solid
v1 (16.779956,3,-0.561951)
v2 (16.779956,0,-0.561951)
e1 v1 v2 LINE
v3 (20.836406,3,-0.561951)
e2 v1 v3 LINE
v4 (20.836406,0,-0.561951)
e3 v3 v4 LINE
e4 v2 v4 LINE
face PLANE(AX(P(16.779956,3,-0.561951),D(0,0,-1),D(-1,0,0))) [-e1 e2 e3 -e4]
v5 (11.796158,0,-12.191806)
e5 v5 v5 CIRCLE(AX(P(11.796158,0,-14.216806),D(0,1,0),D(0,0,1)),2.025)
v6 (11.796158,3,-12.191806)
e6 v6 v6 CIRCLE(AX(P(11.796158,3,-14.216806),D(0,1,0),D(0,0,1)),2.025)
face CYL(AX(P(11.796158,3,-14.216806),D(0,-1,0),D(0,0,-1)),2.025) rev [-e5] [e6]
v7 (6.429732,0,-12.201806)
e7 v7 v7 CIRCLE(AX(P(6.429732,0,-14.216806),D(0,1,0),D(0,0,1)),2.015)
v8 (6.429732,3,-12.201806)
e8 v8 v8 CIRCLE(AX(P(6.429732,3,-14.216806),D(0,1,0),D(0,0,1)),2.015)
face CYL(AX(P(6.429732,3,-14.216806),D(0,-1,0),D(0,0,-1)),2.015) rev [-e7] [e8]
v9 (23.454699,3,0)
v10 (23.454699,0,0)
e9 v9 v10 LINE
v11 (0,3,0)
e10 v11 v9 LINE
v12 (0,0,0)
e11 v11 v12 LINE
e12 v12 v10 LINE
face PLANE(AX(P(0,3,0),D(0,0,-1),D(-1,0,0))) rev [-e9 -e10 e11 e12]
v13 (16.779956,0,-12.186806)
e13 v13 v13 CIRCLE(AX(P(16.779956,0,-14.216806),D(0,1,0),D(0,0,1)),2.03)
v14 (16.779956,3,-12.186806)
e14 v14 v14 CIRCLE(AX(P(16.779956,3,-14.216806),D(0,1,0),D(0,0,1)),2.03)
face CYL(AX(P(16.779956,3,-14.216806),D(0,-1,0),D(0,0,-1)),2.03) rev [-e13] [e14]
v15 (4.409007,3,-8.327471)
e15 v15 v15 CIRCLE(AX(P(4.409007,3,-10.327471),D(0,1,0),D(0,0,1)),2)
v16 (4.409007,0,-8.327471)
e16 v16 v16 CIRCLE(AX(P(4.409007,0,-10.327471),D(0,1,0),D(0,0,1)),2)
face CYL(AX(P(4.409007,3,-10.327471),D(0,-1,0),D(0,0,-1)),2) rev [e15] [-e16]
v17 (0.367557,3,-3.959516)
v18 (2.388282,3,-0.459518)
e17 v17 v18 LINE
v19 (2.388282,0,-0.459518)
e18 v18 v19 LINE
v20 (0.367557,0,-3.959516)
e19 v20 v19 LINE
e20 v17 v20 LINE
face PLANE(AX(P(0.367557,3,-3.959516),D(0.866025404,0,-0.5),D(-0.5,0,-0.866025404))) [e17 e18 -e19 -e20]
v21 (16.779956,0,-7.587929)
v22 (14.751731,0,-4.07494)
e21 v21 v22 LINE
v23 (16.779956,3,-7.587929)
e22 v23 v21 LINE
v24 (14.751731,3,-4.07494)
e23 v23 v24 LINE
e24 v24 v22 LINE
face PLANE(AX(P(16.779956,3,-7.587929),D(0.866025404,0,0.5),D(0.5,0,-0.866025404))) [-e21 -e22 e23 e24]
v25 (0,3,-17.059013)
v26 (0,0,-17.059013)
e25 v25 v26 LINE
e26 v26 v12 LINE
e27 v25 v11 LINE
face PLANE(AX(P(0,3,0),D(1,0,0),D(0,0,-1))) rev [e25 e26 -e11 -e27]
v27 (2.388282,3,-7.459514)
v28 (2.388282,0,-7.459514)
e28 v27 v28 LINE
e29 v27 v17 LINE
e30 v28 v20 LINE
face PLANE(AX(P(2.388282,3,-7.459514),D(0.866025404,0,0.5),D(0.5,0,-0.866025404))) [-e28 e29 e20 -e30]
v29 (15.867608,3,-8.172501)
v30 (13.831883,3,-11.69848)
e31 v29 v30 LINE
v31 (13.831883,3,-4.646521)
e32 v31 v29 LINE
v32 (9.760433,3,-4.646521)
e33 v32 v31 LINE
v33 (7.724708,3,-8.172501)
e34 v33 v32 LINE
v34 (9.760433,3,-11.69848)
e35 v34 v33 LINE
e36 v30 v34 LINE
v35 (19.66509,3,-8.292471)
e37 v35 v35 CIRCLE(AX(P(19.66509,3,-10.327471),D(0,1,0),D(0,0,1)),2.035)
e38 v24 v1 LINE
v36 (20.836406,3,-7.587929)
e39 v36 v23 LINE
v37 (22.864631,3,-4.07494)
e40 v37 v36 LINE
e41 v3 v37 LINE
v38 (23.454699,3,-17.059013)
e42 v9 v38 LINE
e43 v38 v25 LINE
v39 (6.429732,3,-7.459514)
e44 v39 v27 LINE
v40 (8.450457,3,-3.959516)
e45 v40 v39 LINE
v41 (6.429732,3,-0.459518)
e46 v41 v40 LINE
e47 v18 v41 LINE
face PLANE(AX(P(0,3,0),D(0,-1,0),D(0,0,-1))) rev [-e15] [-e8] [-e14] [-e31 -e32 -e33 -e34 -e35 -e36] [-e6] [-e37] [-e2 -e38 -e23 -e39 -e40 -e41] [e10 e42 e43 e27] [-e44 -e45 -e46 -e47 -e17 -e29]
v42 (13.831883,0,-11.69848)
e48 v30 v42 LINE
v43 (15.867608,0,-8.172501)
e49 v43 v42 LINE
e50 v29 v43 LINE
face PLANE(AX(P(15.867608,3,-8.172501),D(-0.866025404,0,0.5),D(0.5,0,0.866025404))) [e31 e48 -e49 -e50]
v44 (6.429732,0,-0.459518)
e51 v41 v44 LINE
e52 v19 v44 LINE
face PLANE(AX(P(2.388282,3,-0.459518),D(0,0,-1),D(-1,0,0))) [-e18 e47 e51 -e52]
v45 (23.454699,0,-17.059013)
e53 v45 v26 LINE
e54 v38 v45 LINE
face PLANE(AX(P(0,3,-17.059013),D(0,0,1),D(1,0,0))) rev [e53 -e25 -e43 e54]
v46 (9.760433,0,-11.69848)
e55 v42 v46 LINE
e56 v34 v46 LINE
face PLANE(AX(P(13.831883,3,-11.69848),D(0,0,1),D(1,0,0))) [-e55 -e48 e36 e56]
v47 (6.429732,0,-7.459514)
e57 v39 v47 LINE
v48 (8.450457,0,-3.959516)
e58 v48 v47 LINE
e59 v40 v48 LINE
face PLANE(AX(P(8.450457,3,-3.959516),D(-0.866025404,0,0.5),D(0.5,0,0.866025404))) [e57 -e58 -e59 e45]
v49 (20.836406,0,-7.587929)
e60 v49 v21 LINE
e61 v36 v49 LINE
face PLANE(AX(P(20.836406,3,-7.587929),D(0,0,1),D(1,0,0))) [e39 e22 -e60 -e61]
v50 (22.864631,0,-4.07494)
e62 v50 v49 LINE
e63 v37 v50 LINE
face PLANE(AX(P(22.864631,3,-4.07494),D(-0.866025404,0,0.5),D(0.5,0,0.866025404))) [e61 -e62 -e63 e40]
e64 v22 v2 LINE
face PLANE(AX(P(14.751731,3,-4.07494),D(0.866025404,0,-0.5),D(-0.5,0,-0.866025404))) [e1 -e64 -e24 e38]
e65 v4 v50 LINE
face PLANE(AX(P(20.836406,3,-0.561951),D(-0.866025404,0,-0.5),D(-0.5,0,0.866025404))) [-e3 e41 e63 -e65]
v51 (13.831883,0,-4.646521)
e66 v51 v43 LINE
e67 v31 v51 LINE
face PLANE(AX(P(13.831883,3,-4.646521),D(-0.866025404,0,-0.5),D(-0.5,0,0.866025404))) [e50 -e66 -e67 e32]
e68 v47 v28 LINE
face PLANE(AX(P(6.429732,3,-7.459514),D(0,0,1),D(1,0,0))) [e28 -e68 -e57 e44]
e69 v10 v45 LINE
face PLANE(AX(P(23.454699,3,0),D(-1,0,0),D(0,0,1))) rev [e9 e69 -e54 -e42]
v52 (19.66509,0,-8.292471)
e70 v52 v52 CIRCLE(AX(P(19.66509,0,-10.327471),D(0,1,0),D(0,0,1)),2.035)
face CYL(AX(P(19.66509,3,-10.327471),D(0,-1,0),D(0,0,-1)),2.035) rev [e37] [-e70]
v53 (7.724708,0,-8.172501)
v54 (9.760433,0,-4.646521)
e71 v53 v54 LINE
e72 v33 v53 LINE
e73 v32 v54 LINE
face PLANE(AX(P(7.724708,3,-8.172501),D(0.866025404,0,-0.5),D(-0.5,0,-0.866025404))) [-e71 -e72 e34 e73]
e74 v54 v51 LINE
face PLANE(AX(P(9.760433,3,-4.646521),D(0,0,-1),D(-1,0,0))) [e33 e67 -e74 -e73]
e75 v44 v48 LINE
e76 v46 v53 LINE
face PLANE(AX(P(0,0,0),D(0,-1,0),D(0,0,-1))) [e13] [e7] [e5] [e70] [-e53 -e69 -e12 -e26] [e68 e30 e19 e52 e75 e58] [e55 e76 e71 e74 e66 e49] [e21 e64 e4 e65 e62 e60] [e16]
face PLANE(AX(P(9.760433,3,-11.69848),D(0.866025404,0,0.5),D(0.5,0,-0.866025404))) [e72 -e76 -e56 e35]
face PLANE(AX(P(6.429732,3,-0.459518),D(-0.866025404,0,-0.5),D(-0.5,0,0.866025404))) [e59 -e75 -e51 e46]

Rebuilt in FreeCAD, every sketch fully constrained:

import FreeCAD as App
import Part
import Sketcher
Q = App.Units.Quantity


def add_polygon(sketch, points):
    """Adds a closed chain of lines whose ends are joined by coincident constraints."""
    first, n = sketch.GeometryCount, len(points)
    for a, b in zip(points, points[1:] + points[:1]):
        sketch.addGeometry(Part.LineSegment(App.Vector(*a, 0), App.Vector(*b, 0)), False)
    for i in range(n):
        sketch.addConstraint(Sketcher.Constraint("Coincident", first + i, 2, first + (i + 1) % n, 1))

doc = App.newDocument("Part")
body = doc.addObject("PartDesign::Body", "Body")

# Sketch on XZ plane
sketch1 = body.newObject("Sketcher::SketchObject", "Sketch")
sketch1.AttachmentSupport = (doc.getObject("XZ_Plane"), [""])
sketch1.MapMode = "FlatFace"
add_polygon(sketch1, [(0, -17.059013), (0, 0), (23.454699, 0), (23.454699, -17.059013)])  # lines 0-3
add_polygon(sketch1, [(2.388282, -7.459514), (6.429732, -7.459514), (8.450457, -3.959516), (6.429732, -0.459518), (2.388282, -0.459518), (0.367557, -3.959516)])  # lines 4-9
add_polygon(sketch1, [(16.779956, -7.587929), (20.836406, -7.587929), (22.864631, -4.07494), (20.836406, -0.561951), (16.779956, -0.561951), (14.751731, -4.07494)])  # lines 10-15
add_polygon(sketch1, [(9.760433, -11.69848), (13.831883, -11.69848), (15.867608, -8.172501), (13.831883, -4.646521), (9.760433, -4.646521), (7.724708, -8.172501)])  # lines 16-21
sketch1.addGeometry(Part.Circle(App.Vector(4.409007, -10.327471, 0), App.Vector(0, 0, 1), 2), False)  # 22
sketch1.addGeometry(Part.Circle(App.Vector(6.429732, -14.216806, 0), App.Vector(0, 0, 1), 2.015), False)  # 23
sketch1.addGeometry(Part.Circle(App.Vector(19.66509, -10.327471, 0), App.Vector(0, 0, 1), 2.035), False)  # 24
sketch1.addGeometry(Part.Circle(App.Vector(11.796158, -14.216806, 0), App.Vector(0, 0, 1), 2.025), False)  # 25
sketch1.addGeometry(Part.Circle(App.Vector(16.779956, -14.216806, 0), App.Vector(0, 0, 1), 2.03), False)  # 26
sketch1.addConstraint(Sketcher.Constraint("Vertical", 0))
sketch1.addConstraint(Sketcher.Constraint("Horizontal", 1))
sketch1.addConstraint(Sketcher.Constraint("Vertical", 2))
sketch1.addConstraint(Sketcher.Constraint("Horizontal", 3))
sketch1.addConstraint(Sketcher.Constraint("Horizontal", 4))
sketch1.addConstraint(Sketcher.Constraint("Horizontal", 7))
sketch1.addConstraint(Sketcher.Constraint("Horizontal", 10))
sketch1.addConstraint(Sketcher.Constraint("Horizontal", 13))
sketch1.addConstraint(Sketcher.Constraint("Horizontal", 16))
sketch1.addConstraint(Sketcher.Constraint("Horizontal", 19))
sketch1.addConstraint(Sketcher.Constraint("Coincident", 0, 2, -1, 1))
sketch1.addConstraint(Sketcher.Constraint("Parallel", 5, 8))
sketch1.addConstraint(Sketcher.Constraint("Parallel", 6, 9))
sketch1.addConstraint(Sketcher.Constraint("Parallel", 8, 11))
sketch1.addConstraint(Sketcher.Constraint("Parallel", 9, 12))
sketch1.addConstraint(Sketcher.Constraint("Parallel", 11, 14))
sketch1.addConstraint(Sketcher.Constraint("Parallel", 12, 15))
sketch1.addConstraint(Sketcher.Constraint("Parallel", 14, 17))
sketch1.addConstraint(Sketcher.Constraint("Parallel", 15, 18))
sketch1.addConstraint(Sketcher.Constraint("Parallel", 17, 20))
sketch1.addConstraint(Sketcher.Constraint("Parallel", 18, 21))
sketch1.addConstraint(Sketcher.Constraint("Horizontal", 22, 3, 24, 3))
sketch1.addConstraint(Sketcher.Constraint("Horizontal", 23, 3, 25, 3))
sketch1.addConstraint(Sketcher.Constraint("Horizontal", 25, 3, 26, 3))
sketch1.addConstraint(Sketcher.Constraint("Horizontal", 5, 2, 8, 2))
sketch1.addConstraint(Sketcher.Constraint("Horizontal", 11, 2, 14, 2))
sketch1.addConstraint(Sketcher.Constraint("Horizontal", 17, 2, 20, 2))
sketch1.addConstraint(Sketcher.Constraint("Vertical", 23, 3, 4, 2))
sketch1.addConstraint(Sketcher.Constraint("Vertical", 4, 2, 6, 2))
sketch1.addConstraint(Sketcher.Constraint("Vertical", 7, 2, 9, 2))
sketch1.addConstraint(Sketcher.Constraint("Vertical", 10, 2, 12, 2))
sketch1.addConstraint(Sketcher.Constraint("Vertical", 26, 3, 13, 2))
sketch1.addConstraint(Sketcher.Constraint("Vertical", 16, 2, 18, 2))
sketch1.addConstraint(Sketcher.Constraint("Diameter", 22, Q("4 mm")))
sketch1.addConstraint(Sketcher.Constraint("Diameter", 23, Q("4.03 mm")))
sketch1.addConstraint(Sketcher.Constraint("Diameter", 24, Q("4.07 mm")))
sketch1.addConstraint(Sketcher.Constraint("Diameter", 25, Q("4.05 mm")))
sketch1.addConstraint(Sketcher.Constraint("Diameter", 26, Q("4.06 mm")))
sketch1.addConstraint(Sketcher.Constraint("Angle", 5, Q("60 deg")))
sketch1.addConstraint(Sketcher.Constraint("DistanceY", 4, 2, 5, 2, Q("3.499998 mm")))
sketch1.addConstraint(Sketcher.Constraint("DistanceX", 1, 1, 1, 2, Q("23.454699 mm")))
sketch1.addConstraint(Sketcher.Constraint("DistanceX", 4, 1, 4, 2, Q("4.04145 mm")))
sketch1.addConstraint(Sketcher.Constraint("DistanceX", 10, 1, 10, 2, Q("4.05645 mm")))
sketch1.addConstraint(Sketcher.Constraint("DistanceX", 16, 1, 16, 2, Q("4.07145 mm")))
sketch1.addConstraint(Sketcher.Constraint("DistanceY", 17, 2, -1, 1, Q("8.172501 mm")))
sketch1.addConstraint(Sketcher.Constraint("DistanceY", 3, 2, 4, 2, Q("9.599498 mm")))
sketch1.addConstraint(Sketcher.Constraint("DistanceX", 5, 2, 25, 3, Q("3.345701 mm")))
sketch1.addConstraint(Sketcher.Constraint("DistanceX", 5, 2, 13, 2, Q("8.329499 mm")))
sketch1.addConstraint(Sketcher.Constraint("DistanceX", 4, 2, 19, 2, Q("3.330701 mm")))
sketch1.addConstraint(Sketcher.Constraint("DistanceX", 22, 3, 20, 2, Q("3.315701 mm")))
sketch1.addConstraint(Sketcher.Constraint("Distance", 11, Q("4.05645 mm")))
sketch1.addConstraint(Sketcher.Constraint("Distance", 17, Q("4.07145 mm")))
sketch1.addConstraint(Sketcher.Constraint("DistanceY", 0, 1, 0, 2, Q("17.059013 mm")))
sketch1.addConstraint(Sketcher.Constraint("DistanceY", 22, 3, -1, 1, Q("10.327471 mm")))
sketch1.addConstraint(Sketcher.Constraint("DistanceX", -1, 1, 24, 3, Q("19.66509 mm")))
sketch1.addConstraint(Sketcher.Constraint("DistanceX", -1, 1, 25, 3, Q("11.796158 mm")))
sketch1.addConstraint(Sketcher.Constraint("DistanceY", 10, 2, -1, 1, Q("7.587929 mm")))
sketch1.addConstraint(Sketcher.Constraint("DistanceY", 23, 3, 4, 2, Q("6.757292 mm")))
pad1 = body.newObject("PartDesign::Pad", "Pad")
pad1.Profile = sketch1
pad1.Length = 3
pad1.Reversed = True

doc.recompute()
